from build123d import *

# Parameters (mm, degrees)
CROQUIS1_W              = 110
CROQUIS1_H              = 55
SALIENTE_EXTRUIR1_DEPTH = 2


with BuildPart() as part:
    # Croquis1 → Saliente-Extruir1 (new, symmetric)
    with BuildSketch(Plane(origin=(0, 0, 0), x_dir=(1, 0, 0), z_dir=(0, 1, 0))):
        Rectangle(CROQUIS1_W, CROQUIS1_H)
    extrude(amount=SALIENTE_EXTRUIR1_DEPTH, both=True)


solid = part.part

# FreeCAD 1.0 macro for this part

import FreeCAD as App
import Part
import Sketcher

V = App.Vector
Q = App.Units.Quantity

doc = App.newDocument("Part")
params = doc.addObject("Spreadsheet::Sheet", "Params")
for row, (alias, value) in enumerate([
    ("sketch1_width", "110 mm"),
    ("sketch1_height", "55 mm"),
    ("pad1_length", "4 mm"),
], start=1):
    params.set(f"A{row}", alias)
    params.set(f"B{row}", "=" + value)
    params.setAlias(f"B{row}", alias)

body = doc.addObject("PartDesign::Body", "Body")

# Sketch on XZ plane
sketch1 = body.newObject("Sketcher::SketchObject", "Sketch")
sketch1.AttachmentSupport = (doc.getObject("XZ_Plane"), [""])
sketch1.MapMode = "FlatFace"
sketch1.addGeometry(Part.LineSegment(V(-55, -28, 0), V(-55, 28, 0)), False)
sketch1.addGeometry(Part.LineSegment(V(-55, 28, 0), V(55, 28, 0)), False)
sketch1.addGeometry(Part.LineSegment(V(55, 28, 0), V(55, -28, 0)), False)
sketch1.addGeometry(Part.LineSegment(V(55, -28, 0), V(-55, -28, 0)), False)
sketch1.addConstraint(Sketcher.Constraint("Coincident", 0, 2, 1, 1))
sketch1.addConstraint(Sketcher.Constraint("Coincident", 1, 2, 2, 1))
sketch1.addConstraint(Sketcher.Constraint("Coincident", 2, 2, 3, 1))
sketch1.addConstraint(Sketcher.Constraint("Coincident", 3, 2, 0, 1))
sketch1.addConstraint(Sketcher.Constraint("Vertical", 0))
sketch1.addConstraint(Sketcher.Constraint("Horizontal", 1))
sketch1.addConstraint(Sketcher.Constraint("Vertical", 2))
sketch1.addConstraint(Sketcher.Constraint("Horizontal", 3))
sketch1.addConstraint(Sketcher.Constraint("Symmetric", 0, 2, 2, 2, -1, 1))
sketch1.addConstraint(Sketcher.Constraint("DistanceX", 1, 1, 1, 2, Q("110 mm")))
sketch1.addConstraint(Sketcher.Constraint("DistanceY", 0, 1, 0, 2, Q("55 mm")))
sketch1.setExpression("Constraints[9]", "Params.sketch1_width")
sketch1.setExpression("Constraints[10]", "Params.sketch1_height")
pad1 = body.newObject("PartDesign::Pad", "Pad")
pad1.Profile = sketch1
pad1.setExpression("Length", "Params.pad1_length")
pad1.Midplane = True

doc.recompute()
